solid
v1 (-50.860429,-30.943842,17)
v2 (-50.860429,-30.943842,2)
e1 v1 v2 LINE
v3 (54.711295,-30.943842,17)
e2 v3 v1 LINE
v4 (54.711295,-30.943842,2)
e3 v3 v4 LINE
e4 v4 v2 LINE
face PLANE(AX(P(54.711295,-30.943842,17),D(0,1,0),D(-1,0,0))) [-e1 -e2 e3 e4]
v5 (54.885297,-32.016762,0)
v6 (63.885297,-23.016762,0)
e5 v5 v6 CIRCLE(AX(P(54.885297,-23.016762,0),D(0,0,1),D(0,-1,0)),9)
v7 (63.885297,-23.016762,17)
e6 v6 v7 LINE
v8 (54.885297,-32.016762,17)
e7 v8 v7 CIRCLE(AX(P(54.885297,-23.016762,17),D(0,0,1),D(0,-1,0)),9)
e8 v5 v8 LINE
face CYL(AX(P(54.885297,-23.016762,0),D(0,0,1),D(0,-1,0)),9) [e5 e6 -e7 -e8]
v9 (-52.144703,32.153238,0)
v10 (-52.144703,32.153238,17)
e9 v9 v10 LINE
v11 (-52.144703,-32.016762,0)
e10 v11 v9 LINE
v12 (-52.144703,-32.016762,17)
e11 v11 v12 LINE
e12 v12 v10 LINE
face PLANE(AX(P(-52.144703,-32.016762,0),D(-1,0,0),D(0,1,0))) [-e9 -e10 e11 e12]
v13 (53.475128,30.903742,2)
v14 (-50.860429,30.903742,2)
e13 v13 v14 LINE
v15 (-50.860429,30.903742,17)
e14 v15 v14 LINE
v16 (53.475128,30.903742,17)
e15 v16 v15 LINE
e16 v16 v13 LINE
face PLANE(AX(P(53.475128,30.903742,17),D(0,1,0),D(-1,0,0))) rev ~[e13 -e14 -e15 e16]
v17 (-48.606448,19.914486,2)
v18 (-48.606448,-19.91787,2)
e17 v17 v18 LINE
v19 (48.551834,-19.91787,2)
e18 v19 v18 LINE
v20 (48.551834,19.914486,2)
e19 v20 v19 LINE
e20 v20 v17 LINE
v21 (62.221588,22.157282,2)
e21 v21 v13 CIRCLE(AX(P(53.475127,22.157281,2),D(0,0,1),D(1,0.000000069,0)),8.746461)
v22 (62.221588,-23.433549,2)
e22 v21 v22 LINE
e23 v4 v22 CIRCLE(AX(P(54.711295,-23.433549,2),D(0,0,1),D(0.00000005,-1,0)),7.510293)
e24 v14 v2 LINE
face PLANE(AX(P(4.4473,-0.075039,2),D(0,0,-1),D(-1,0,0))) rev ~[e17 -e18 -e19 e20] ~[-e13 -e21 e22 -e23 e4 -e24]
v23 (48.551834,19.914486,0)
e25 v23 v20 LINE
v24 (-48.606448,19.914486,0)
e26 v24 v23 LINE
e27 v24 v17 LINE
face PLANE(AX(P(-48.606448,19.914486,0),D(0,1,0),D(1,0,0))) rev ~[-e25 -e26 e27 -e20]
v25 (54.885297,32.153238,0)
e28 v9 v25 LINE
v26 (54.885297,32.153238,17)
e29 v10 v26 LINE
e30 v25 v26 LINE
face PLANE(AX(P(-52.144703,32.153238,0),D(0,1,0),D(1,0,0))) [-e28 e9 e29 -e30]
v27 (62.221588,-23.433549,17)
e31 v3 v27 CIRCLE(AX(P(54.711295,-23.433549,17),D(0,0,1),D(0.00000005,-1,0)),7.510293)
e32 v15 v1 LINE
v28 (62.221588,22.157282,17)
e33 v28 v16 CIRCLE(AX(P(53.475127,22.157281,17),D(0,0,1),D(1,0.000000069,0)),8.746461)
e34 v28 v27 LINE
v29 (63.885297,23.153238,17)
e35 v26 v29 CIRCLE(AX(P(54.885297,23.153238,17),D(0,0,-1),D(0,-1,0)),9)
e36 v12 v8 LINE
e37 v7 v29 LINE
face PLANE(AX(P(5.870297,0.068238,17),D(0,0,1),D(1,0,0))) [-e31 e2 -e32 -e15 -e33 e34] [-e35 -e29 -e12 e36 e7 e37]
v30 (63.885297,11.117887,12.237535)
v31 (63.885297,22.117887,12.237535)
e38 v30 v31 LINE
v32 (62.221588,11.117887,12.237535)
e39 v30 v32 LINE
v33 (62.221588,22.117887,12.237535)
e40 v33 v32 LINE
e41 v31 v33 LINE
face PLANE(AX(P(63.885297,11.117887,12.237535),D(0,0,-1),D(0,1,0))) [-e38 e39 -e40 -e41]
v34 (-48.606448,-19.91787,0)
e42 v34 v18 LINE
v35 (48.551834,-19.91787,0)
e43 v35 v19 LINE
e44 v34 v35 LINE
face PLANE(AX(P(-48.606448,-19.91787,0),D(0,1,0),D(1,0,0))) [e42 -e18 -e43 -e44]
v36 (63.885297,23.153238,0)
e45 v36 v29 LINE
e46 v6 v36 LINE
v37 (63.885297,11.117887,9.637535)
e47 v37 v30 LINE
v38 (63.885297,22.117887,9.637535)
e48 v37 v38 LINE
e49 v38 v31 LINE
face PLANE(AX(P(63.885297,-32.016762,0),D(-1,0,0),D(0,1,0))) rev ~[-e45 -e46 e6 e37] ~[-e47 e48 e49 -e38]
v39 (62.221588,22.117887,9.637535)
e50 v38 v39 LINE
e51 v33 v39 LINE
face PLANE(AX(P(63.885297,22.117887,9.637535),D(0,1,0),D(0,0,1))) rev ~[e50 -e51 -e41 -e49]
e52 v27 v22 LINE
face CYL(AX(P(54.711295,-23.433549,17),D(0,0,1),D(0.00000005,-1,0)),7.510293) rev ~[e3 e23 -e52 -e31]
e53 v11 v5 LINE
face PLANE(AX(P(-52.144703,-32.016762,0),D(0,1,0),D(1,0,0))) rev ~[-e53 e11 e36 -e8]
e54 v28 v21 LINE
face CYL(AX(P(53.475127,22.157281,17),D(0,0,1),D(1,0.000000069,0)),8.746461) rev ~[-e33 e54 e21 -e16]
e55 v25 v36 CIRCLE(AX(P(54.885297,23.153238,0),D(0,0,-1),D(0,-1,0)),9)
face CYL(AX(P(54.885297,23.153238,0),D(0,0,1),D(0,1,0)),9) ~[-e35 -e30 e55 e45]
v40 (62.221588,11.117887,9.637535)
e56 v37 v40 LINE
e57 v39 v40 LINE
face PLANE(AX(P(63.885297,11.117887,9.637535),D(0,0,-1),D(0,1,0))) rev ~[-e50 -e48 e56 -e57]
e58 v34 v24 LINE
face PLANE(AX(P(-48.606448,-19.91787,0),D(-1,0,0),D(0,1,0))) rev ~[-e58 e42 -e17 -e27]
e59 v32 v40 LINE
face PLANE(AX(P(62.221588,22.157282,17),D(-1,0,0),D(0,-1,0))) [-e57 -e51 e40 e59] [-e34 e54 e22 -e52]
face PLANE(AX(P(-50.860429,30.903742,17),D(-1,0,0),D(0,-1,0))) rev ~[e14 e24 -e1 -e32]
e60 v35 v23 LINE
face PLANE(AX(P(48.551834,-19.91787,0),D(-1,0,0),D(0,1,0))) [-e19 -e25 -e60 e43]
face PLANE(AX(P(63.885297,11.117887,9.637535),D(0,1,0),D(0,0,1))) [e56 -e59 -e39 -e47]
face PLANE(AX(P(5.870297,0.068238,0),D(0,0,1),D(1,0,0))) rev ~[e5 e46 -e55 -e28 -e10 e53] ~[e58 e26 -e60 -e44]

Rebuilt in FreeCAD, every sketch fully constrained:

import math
import FreeCAD as App
import Part
import Sketcher

V = App.Vector


def edges_at(feature, points):
    """Names of the edges that pass closest to the given points."""
    edges = feature.Shape.Edges
    near = lambda p: min(range(len(edges)), key=lambda i: edges[i].distToShape(Part.Vertex(*p))[0])
    return sorted({f"Edge{near(p) + 1}" for p in points})

doc = App.newDocument("Part")
params = doc.addObject("Spreadsheet::Sheet", "Params")
for row, (alias, value) in enumerate([
    ("sketch1_width", "116.03 mm"),
    ("sketch1_height", "64.17 mm"),
    ("pad1_length", "17 mm"),
    ("pocket1_length", "15 mm"),
    ("fillet_radius", "9 mm"),
    ("sketch3_width", "11 mm"),
    ("sketch3_height", "2.6 mm"),
    ("pocket2_length", "5 mm"),
], start=1):
    params.set(f"A{row}", alias)
    params.set(f"B{row}", "=" + value)
    params.setAlias(f"B{row}", alias)

body = doc.addObject("PartDesign::Body", "Body")

sketch1 = body.newObject("Sketcher::SketchObject", "Sketch")
sketch1.AttachmentSupport = (doc.getObject("XY_Plane"), [""])
sketch1.MapMode = "FlatFace"
sketch1.addGeometry(Part.LineSegment(V(-52.144703, 32.153238, 0), V(-52.144703, -32.016762, 0)), False)
sketch1.addGeometry(Part.LineSegment(V(-52.144703, -32.016762, 0), V(63.885297, -32.016762, 0)), False)
sketch1.addGeometry(Part.LineSegment(V(63.885297, -32.016762, 0), V(63.885297, 32.153238, 0)), False)
sketch1.addGeometry(Part.LineSegment(V(63.885297, 32.153238, 0), V(-52.144703, 32.153238, 0)), False)
sketch1.addGeometry(Part.LineSegment(V(48.551834, -19.91787, 0), V(-48.606448, -19.91787, 0)), False)
sketch1.addGeometry(Part.LineSegment(V(-48.606448, -19.91787, 0), V(-48.606448, 19.914486, 0)), False)
sketch1.addGeometry(Part.LineSegment(V(-48.606448, 19.914486, 0), V(48.551834, 19.914486, 0)), False)
sketch1.addGeometry(Part.LineSegment(V(48.551834, 19.914486, 0), V(48.551834, -19.91787, 0)), False)
sketch1.addConstraint(Sketcher.Constraint("Coincident", 0, 2, 1, 1))
sketch1.addConstraint(Sketcher.Constraint("Coincident", 1, 2, 2, 1))
sketch1.addConstraint(Sketcher.Constraint("Coincident", 2, 2, 3, 1))
sketch1.addConstraint(Sketcher.Constraint("Coincident", 3, 2, 0, 1))
sketch1.addConstraint(Sketcher.Constraint("Coincident", 4, 2, 5, 1))
sketch1.addConstraint(Sketcher.Constraint("Coincident", 5, 2, 6, 1))
sketch1.addConstraint(Sketcher.Constraint("Coincident", 6, 2, 7, 1))
sketch1.addConstraint(Sketcher.Constraint("Coincident", 7, 2, 4, 1))
sketch1.addConstraint(Sketcher.Constraint("Vertical", 0))
sketch1.addConstraint(Sketcher.Constraint("Horizontal", 1))
sketch1.addConstraint(Sketcher.Constraint("Vertical", 2))
sketch1.addConstraint(Sketcher.Constraint("Horizontal", 3))
sketch1.addConstraint(Sketcher.Constraint("Horizontal", 4))
sketch1.addConstraint(Sketcher.Constraint("Vertical", 5))
sketch1.addConstraint(Sketcher.Constraint("Horizontal", 6))
sketch1.addConstraint(Sketcher.Constraint("Vertical", 7))
sketch1.addConstraint(Sketcher.Constraint("DistanceX", 1, 1, 1, 2, 116.03))
sketch1.addConstraint(Sketcher.Constraint("DistanceY", 0, 2, 0, 1, 64.17))
sketch1.addConstraint(Sketcher.Constraint("DistanceX", 4, 2, 4, 1, 97.158283))
sketch1.addConstraint(Sketcher.Constraint("DistanceY", 5, 1, 5, 2, 39.832356))
sketch1.addConstraint(Sketcher.Constraint("DistanceY", -1, 1, 2, 2, 32.153238))
sketch1.addConstraint(Sketcher.Constraint("DistanceX", 4, 2, -1, 1, 48.606448))
sketch1.addConstraint(Sketcher.Constraint("DistanceY", 4, 2, -1, 1, 19.91787))
sketch1.addConstraint(Sketcher.Constraint("DistanceX", 0, 2, -1, 1, 52.144703))
sketch1.setExpression("Constraints[16]", "Params.sketch1_width")
sketch1.setExpression("Constraints[17]", "Params.sketch1_height")
pad1 = body.newObject("PartDesign::Pad", "Pad")
pad1.Profile = sketch1
pad1.setExpression("Length", "Params.pad1_length")

sketch2 = body.newObject("Sketcher::SketchObject", "Sketch001")
sketch2.AttachmentSupport = (doc.getObject("XY_Plane"), [""])
sketch2.MapMode = "FlatFace"
sketch2.AttachmentOffset = App.Placement(V(0, 0, 17), App.Rotation())
sketch2.addGeometry(Part.LineSegment(V(53.475128, 30.903742, 0), V(-50.860429, 30.903742, 0)), False)
sketch2.addGeometry(Part.LineSegment(V(-50.860429, 30.903742, 0), V(-50.860429, -30.943842, 0)), False)
sketch2.addGeometry(Part.LineSegment(V(-50.860429, -30.943842, 0), V(54.711295, -30.943842, 0)), False)
sketch2.addGeometry(Part.ArcOfCircle(Part.Circle(V(54.711295, -23.433549, 0), V(0, 0, 1), 7.510293), math.radians(-89.999997), math.radians(-0.000003)), False)
sketch2.addGeometry(Part.LineSegment(V(62.221588, -23.433549, 0), V(62.221588, 22.157282, 0)), False)
sketch2.addGeometry(Part.ArcOfCircle(Part.Circle(V(53.475127, 22.157281, 0), V(0, 0, 1), 8.746461), math.radians(0.000004), math.radians(89.999996)), False)
sketch2.addConstraint(Sketcher.Constraint("Coincident", 0, 2, 1, 1))
sketch2.addConstraint(Sketcher.Constraint("Coincident", 1, 2, 2, 1))
sketch2.addConstraint(Sketcher.Constraint("Tangent", 2, 2, 3, 1))
sketch2.addConstraint(Sketcher.Constraint("Tangent", 3, 2, 4, 1))
sketch2.addConstraint(Sketcher.Constraint("Tangent", 4, 2, 5, 1))
sketch2.addConstraint(Sketcher.Constraint("Tangent", 5, 2, 0, 1))
sketch2.addConstraint(Sketcher.Constraint("Horizontal", 0))
sketch2.addConstraint(Sketcher.Constraint("Vertical", 1))
sketch2.addConstraint(Sketcher.Constraint("Horizontal", 2))
sketch2.addConstraint(Sketcher.Constraint("Vertical", 4))
sketch2.addConstraint(Sketcher.Constraint("Radius", 5, 8.746461))
sketch2.addConstraint(Sketcher.Constraint("Radius", 3, 7.510293))
sketch2.addConstraint(Sketcher.Constraint("DistanceY", 4, 1, 4, 2, 45.590831))
sketch2.addConstraint(Sketcher.Constraint("DistanceX", 0, 2, 0, 1, 104.335557))
sketch2.addConstraint(Sketcher.Constraint("DistanceY", 3, 3, -1, 1, 23.433549))
sketch2.addConstraint(Sketcher.Constraint("DistanceX", 0, 2, -1, 1, 50.860429))
pocket1 = body.newObject("PartDesign::Pocket", "Pocket")
pocket1.Profile = sketch2
pocket1.setExpression("Length", "Params.pocket1_length")
doc.recompute()

fillet = body.newObject("PartDesign::Fillet", "Fillet")
fillet.Base = (pocket1, edges_at(pocket1, [(63.885, 32.153, 8.5), (63.885, -32.017, 8.5)]))
fillet.setExpression("Radius", "Params.fillet_radius")

sketch3 = body.newObject("Sketcher::SketchObject", "Sketch002")
sketch3.AttachmentSupport = (doc.getObject("YZ_Plane"), [""])
sketch3.MapMode = "FlatFace"
sketch3.AttachmentOffset = App.Placement(V(0, 0, 63.885297), App.Rotation())
sketch3.addGeometry(Part.LineSegment(V(11.117887, 12.237535, 0), V(11.117887, 9.637535, 0)), False)
sketch3.addGeometry(Part.LineSegment(V(11.117887, 9.637535, 0), V(22.117887, 9.637535, 0)), False)
sketch3.addGeometry(Part.LineSegment(V(22.117887, 9.637535, 0), V(22.117887, 12.237535, 0)), False)
sketch3.addGeometry(Part.LineSegment(V(22.117887, 12.237535, 0), V(11.117887, 12.237535, 0)), False)
sketch3.addConstraint(Sketcher.Constraint("Coincident", 0, 2, 1, 1))
sketch3.addConstraint(Sketcher.Constraint("Coincident", 1, 2, 2, 1))
sketch3.addConstraint(Sketcher.Constraint("Coincident", 2, 2, 3, 1))
sketch3.addConstraint(Sketcher.Constraint("Coincident", 3, 2, 0, 1))
sketch3.addConstraint(Sketcher.Constraint("Vertical", 0))
sketch3.addConstraint(Sketcher.Constraint("Horizontal", 1))
sketch3.addConstraint(Sketcher.Constraint("Vertical", 2))
sketch3.addConstraint(Sketcher.Constraint("Horizontal", 3))
sketch3.addConstraint(Sketcher.Constraint("DistanceX", 1, 1, 1, 2, 11.0))
sketch3.addConstraint(Sketcher.Constraint("DistanceY", 0, 2, 0, 1, 2.6))
sketch3.addConstraint(Sketcher.Constraint("DistanceX", -1, 1, 0, 2, 11.117887))
sketch3.addConstraint(Sketcher.Constraint("DistanceY", -1, 1, 0, 2, 9.637535))
sketch3.setExpression("Constraints[8]", "Params.sketch3_width")
sketch3.setExpression("Constraints[9]", "Params.sketch3_height")
pocket2 = body.newObject("PartDesign::Pocket", "Pocket001")
pocket2.Profile = sketch3
pocket2.setExpression("Length", "Params.pocket2_length")

doc.recompute()
